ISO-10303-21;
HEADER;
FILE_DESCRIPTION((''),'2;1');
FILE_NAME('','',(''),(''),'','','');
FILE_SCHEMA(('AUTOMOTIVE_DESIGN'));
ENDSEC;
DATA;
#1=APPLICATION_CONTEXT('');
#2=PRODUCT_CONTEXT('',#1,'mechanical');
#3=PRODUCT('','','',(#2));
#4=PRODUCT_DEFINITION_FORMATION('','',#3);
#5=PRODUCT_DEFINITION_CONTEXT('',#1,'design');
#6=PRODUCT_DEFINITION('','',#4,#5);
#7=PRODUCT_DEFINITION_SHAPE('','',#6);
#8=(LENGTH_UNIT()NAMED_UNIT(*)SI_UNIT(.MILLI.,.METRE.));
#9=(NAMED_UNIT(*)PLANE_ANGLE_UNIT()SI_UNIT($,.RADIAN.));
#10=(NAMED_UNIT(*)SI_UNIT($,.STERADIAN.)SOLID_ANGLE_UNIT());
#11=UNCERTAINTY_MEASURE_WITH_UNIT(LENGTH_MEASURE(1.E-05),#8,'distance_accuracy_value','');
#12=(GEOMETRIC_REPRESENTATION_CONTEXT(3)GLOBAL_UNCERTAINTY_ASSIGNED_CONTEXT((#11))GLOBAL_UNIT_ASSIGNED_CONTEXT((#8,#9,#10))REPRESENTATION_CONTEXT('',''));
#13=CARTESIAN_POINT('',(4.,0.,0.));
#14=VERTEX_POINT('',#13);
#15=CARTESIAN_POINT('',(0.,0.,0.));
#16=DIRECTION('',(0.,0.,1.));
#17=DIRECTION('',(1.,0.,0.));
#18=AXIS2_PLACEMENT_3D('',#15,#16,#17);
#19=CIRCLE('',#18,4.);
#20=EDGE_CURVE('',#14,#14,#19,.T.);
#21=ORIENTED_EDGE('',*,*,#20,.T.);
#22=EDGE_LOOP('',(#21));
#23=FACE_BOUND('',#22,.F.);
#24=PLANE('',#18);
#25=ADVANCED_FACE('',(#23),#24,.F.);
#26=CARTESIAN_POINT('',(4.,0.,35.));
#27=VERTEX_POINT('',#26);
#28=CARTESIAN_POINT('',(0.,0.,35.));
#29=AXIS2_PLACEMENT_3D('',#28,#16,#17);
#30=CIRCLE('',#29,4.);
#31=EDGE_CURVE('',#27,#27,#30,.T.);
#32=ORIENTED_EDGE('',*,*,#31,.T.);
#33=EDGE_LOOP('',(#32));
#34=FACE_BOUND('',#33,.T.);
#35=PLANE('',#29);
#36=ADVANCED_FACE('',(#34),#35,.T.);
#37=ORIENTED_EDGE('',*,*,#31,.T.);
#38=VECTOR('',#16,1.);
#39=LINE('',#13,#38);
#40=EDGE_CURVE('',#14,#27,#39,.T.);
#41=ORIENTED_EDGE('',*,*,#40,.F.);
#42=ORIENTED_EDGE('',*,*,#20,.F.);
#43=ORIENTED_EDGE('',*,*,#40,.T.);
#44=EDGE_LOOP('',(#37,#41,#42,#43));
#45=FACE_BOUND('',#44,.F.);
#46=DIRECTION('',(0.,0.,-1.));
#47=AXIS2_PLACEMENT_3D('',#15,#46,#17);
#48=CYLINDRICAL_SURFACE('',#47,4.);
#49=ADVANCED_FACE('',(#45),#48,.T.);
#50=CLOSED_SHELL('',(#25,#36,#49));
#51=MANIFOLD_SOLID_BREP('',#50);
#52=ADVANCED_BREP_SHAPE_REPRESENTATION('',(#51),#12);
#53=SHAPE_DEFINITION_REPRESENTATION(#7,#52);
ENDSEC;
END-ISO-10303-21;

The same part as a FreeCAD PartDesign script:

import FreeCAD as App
import Part
import Sketcher
from FreeCAD import Vector
Q = App.Units.Quantity

doc = App.newDocument("Part")
body = doc.addObject("PartDesign::Body", "Body")

sketch1 = body.newObject("Sketcher::SketchObject", "Sketch")
sketch1.AttachmentSupport = (doc.getObject("XY_Plane"), [""])
sketch1.MapMode = "FlatFace"
sketch1.addGeometry(Part.Circle(Vector(0, 0, 0), Vector(0, 0, 1), 4), False)
sketch1.addConstraint(Sketcher.Constraint("Coincident", 0, 3, -1, 1))
sketch1.addConstraint(Sketcher.Constraint("Diameter", 0, Q("8 mm")))
pad1 = body.newObject("PartDesign::Pad", "Pad")
pad1.Profile = sketch1
pad1.Length = 35

doc.recompute()
